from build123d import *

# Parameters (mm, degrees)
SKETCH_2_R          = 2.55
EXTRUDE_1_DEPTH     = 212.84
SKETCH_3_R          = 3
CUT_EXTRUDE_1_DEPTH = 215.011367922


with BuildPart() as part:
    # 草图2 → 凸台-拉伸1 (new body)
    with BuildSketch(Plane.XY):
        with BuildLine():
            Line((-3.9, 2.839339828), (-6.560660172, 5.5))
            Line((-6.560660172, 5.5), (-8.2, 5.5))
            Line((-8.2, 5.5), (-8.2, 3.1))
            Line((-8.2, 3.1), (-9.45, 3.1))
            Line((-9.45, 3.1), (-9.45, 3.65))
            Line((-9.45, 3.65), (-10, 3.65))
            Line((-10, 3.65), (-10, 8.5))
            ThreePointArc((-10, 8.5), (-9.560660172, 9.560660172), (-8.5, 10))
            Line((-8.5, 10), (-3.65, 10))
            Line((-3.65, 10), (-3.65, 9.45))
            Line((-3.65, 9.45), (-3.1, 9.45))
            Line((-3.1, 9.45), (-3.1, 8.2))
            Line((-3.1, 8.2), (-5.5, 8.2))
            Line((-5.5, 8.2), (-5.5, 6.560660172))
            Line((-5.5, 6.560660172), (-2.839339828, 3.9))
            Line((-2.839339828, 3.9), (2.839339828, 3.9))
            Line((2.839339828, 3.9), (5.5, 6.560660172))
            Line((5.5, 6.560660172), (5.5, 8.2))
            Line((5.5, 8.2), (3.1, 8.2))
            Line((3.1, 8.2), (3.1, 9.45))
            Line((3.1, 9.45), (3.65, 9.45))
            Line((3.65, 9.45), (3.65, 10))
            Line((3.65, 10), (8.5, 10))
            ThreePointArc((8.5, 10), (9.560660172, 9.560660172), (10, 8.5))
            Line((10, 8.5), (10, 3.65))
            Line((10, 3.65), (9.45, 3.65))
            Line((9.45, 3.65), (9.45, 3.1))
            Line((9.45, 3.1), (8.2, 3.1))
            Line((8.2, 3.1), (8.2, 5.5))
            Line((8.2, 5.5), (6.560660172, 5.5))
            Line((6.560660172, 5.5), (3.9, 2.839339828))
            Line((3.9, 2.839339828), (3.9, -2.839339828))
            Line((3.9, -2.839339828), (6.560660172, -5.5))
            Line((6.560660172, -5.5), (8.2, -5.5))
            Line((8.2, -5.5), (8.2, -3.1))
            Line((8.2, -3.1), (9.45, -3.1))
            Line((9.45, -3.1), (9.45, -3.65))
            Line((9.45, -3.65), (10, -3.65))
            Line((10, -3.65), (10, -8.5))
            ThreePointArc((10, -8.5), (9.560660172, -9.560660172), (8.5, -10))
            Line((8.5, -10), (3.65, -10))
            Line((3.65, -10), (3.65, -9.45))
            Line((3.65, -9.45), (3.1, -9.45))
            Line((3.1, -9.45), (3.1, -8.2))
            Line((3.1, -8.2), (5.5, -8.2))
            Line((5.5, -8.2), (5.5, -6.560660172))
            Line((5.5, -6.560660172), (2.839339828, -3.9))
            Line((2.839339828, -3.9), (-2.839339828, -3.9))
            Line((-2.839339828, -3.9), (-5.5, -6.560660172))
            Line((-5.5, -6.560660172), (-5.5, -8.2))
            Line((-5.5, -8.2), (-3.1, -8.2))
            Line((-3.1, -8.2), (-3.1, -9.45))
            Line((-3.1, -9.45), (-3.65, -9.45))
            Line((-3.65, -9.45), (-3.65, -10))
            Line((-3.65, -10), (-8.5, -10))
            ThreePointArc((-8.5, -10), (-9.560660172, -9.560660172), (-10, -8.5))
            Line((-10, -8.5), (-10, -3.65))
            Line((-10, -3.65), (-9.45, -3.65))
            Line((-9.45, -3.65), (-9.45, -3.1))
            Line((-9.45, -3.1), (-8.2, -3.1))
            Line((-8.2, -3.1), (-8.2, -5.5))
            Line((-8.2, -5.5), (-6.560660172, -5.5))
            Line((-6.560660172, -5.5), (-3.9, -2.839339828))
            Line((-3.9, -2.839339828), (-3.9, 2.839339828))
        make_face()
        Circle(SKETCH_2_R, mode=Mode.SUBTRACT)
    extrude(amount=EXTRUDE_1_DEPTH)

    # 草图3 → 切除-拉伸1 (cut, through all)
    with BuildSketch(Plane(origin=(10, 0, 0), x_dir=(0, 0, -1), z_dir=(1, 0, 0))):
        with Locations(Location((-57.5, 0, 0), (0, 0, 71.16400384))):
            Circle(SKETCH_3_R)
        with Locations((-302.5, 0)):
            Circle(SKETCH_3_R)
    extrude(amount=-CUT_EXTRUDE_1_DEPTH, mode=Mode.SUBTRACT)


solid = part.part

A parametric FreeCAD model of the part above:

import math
import FreeCAD as App
import Part
import Sketcher
from FreeCAD import Vector

doc = App.newDocument("Part")
body = doc.addObject("PartDesign::Body", "Body")

sketch1 = body.newObject("Sketcher::SketchObject", "Sketch")
sketch1.AttachmentSupport = (doc.getObject("XY_Plane"), [""])
sketch1.MapMode = "FlatFace"
sketch1.addGeometry([
    Part.LineSegment(Vector(-6.56066, 5.5, 0), Vector(-3.9, 2.83934, 0)),
    Part.LineSegment(Vector(-3.9, 2.83934, 0), Vector(-3.9, -2.83934, 0)),
    Part.LineSegment(Vector(-3.9, -2.83934, 0), Vector(-6.56066, -5.5, 0)),
    Part.LineSegment(Vector(-6.56066, -5.5, 0), Vector(-8.2, -5.5, 0)),
    Part.LineSegment(Vector(-8.2, -5.5, 0), Vector(-8.2, -3.1, 0)),
    Part.LineSegment(Vector(-8.2, -3.1, 0), Vector(-9.45, -3.1, 0)),
    Part.LineSegment(Vector(-9.45, -3.1, 0), Vector(-9.45, -3.65, 0)),
    Part.LineSegment(Vector(-9.45, -3.65, 0), Vector(-10, -3.65, 0)),
    Part.LineSegment(Vector(-10, -3.65, 0), Vector(-10, -8.5, 0)),
    Part.ArcOfCircle(Part.Circle(Vector(-8.5, -8.5, 0), Vector(0, 0, 1), 1.5), math.radians(180), math.radians(270)),
    Part.LineSegment(Vector(-8.5, -10, 0), Vector(-3.65, -10, 0)),
    Part.LineSegment(Vector(-3.65, -10, 0), Vector(-3.65, -9.45, 0)),
    Part.LineSegment(Vector(-3.65, -9.45, 0), Vector(-3.1, -9.45, 0)),
    Part.LineSegment(Vector(-3.1, -9.45, 0), Vector(-3.1, -8.2, 0)),
    Part.LineSegment(Vector(-3.1, -8.2, 0), Vector(-5.5, -8.2, 0)),
    Part.LineSegment(Vector(-5.5, -8.2, 0), Vector(-5.5, -6.56066, 0)),
    Part.LineSegment(Vector(-5.5, -6.56066, 0), Vector(-2.83934, -3.9, 0)),
    Part.LineSegment(Vector(-2.83934, -3.9, 0), Vector(2.83934, -3.9, 0)),
    Part.LineSegment(Vector(2.83934, -3.9, 0), Vector(5.5, -6.56066, 0)),
    Part.LineSegment(Vector(5.5, -6.56066, 0), Vector(5.5, -8.2, 0)),
    Part.LineSegment(Vector(5.5, -8.2, 0), Vector(3.1, -8.2, 0)),
    Part.LineSegment(Vector(3.1, -8.2, 0), Vector(3.1, -9.45, 0)),
    Part.LineSegment(Vector(3.1, -9.45, 0), Vector(3.65, -9.45, 0)),
    Part.LineSegment(Vector(3.65, -9.45, 0), Vector(3.65, -10, 0)),
    Part.LineSegment(Vector(3.65, -10, 0), Vector(8.5, -10, 0)),
    Part.ArcOfCircle(Part.Circle(Vector(8.5, -8.5, 0), Vector(0, 0, 1), 1.5), math.radians(-90), math.radians(0)),
    Part.LineSegment(Vector(10, -8.5, 0), Vector(10, -3.65, 0)),
    Part.LineSegment(Vector(10, -3.65, 0), Vector(9.45, -3.65, 0)),
    Part.LineSegment(Vector(9.45, -3.65, 0), Vector(9.45, -3.1, 0)),
    Part.LineSegment(Vector(9.45, -3.1, 0), Vector(8.2, -3.1, 0)),
    Part.LineSegment(Vector(8.2, -3.1, 0), Vector(8.2, -5.5, 0)),
    Part.LineSegment(Vector(8.2, -5.5, 0), Vector(6.56066, -5.5, 0)),
    Part.LineSegment(Vector(6.56066, -5.5, 0), Vector(3.9, -2.83934, 0)),
    Part.LineSegment(Vector(3.9, -2.83934, 0), Vector(3.9, 2.83934, 0)),
    Part.LineSegment(Vector(3.9, 2.83934, 0), Vector(6.56066, 5.5, 0)),
    Part.LineSegment(Vector(6.56066, 5.5, 0), Vector(8.2, 5.5, 0)),
    Part.LineSegment(Vector(8.2, 5.5, 0), Vector(8.2, 3.1, 0)),
    Part.LineSegment(Vector(8.2, 3.1, 0), Vector(9.45, 3.1, 0)),
    Part.LineSegment(Vector(9.45, 3.1, 0), Vector(9.45, 3.65, 0)),
    Part.LineSegment(Vector(9.45, 3.65, 0), Vector(10, 3.65, 0)),
    Part.LineSegment(Vector(10, 3.65, 0), Vector(10, 8.5, 0)),
    Part.ArcOfCircle(Part.Circle(Vector(8.5, 8.5, 0), Vector(0, 0, 1), 1.5), math.radians(0), math.radians(90)),
    Part.LineSegment(Vector(8.5, 10, 0), Vector(3.65, 10, 0)),
    Part.LineSegment(Vector(3.65, 10, 0), Vector(3.65, 9.45, 0)),
    Part.LineSegment(Vector(3.65, 9.45, 0), Vector(3.1, 9.45, 0)),
    Part.LineSegment(Vector(3.1, 9.45, 0), Vector(3.1, 8.2, 0)),
    Part.LineSegment(Vector(3.1, 8.2, 0), Vector(5.5, 8.2, 0)),
    Part.LineSegment(Vector(5.5, 8.2, 0), Vector(5.5, 6.56066, 0)),
    Part.LineSegment(Vector(5.5, 6.56066, 0), Vector(2.83934, 3.9, 0)),
    Part.LineSegment(Vector(2.83934, 3.9, 0), Vector(-2.83934, 3.9, 0)),
    Part.LineSegment(Vector(-2.83934, 3.9, 0), Vector(-5.5, 6.56066, 0)),
    Part.LineSegment(Vector(-5.5, 6.56066, 0), Vector(-5.5, 8.2, 0)),
    Part.LineSegment(Vector(-5.5, 8.2, 0), Vector(-3.1, 8.2, 0)),
    Part.LineSegment(Vector(-3.1, 8.2, 0), Vector(-3.1, 9.45, 0)),
    Part.LineSegment(Vector(-3.1, 9.45, 0), Vector(-3.65, 9.45, 0)),
    Part.LineSegment(Vector(-3.65, 9.45, 0), Vector(-3.65, 10, 0)),
    Part.LineSegment(Vector(-3.65, 10, 0), Vector(-8.5, 10, 0)),
    Part.ArcOfCircle(Part.Circle(Vector(-8.5, 8.5, 0), Vector(0, 0, 1), 1.5), math.radians(90), math.radians(180)),
    Part.LineSegment(Vector(-10, 8.5, 0), Vector(-10, 3.65, 0)),
    Part.LineSegment(Vector(-10, 3.65, 0), Vector(-9.45, 3.65, 0)),
    Part.LineSegment(Vector(-9.45, 3.65, 0), Vector(-9.45, 3.1, 0)),
    Part.LineSegment(Vector(-9.45, 3.1, 0), Vector(-8.2, 3.1, 0)),
    Part.LineSegment(Vector(-8.2, 3.1, 0), Vector(-8.2, 5.5, 0)),
    Part.LineSegment(Vector(-8.2, 5.5, 0), Vector(-6.56066, 5.5, 0)),
    Part.Circle(Vector(0, 0, 0), Vector(0, 0, 1), 2.55),
], False)
sketch1.addConstraint([
    Sketcher.Constraint("Coincident", 0, 2, 1, 1),
    Sketcher.Constraint("Coincident", 1, 2, 2, 1),
    Sketcher.Constraint("Coincident", 2, 2, 3, 1),
    Sketcher.Constraint("Coincident", 3, 2, 4, 1),
    Sketcher.Constraint("Coincident", 4, 2, 5, 1),
    Sketcher.Constraint("Coincident", 5, 2, 6, 1),
    Sketcher.Constraint("Coincident", 6, 2, 7, 1),
    Sketcher.Constraint("Coincident", 7, 2, 8, 1),
    Sketcher.Constraint("Tangent", 8, 2, 9, 1),
    Sketcher.Constraint("Tangent", 9, 2, 10, 1),
    Sketcher.Constraint("Coincident", 10, 2, 11, 1),
    Sketcher.Constraint("Coincident", 11, 2, 12, 1),
    Sketcher.Constraint("Coincident", 12, 2, 13, 1),
    Sketcher.Constraint("Coincident", 13, 2, 14, 1),
    Sketcher.Constraint("Coincident", 14, 2, 15, 1),
    Sketcher.Constraint("Coincident", 15, 2, 16, 1),
    Sketcher.Constraint("Coincident", 16, 2, 17, 1),
    Sketcher.Constraint("Coincident", 17, 2, 18, 1),
    Sketcher.Constraint("Coincident", 18, 2, 19, 1),
    Sketcher.Constraint("Coincident", 19, 2, 20, 1),
    Sketcher.Constraint("Coincident", 20, 2, 21, 1),
    Sketcher.Constraint("Coincident", 21, 2, 22, 1),
    Sketcher.Constraint("Coincident", 22, 2, 23, 1),
    Sketcher.Constraint("Coincident", 23, 2, 24, 1),
    Sketcher.Constraint("Tangent", 24, 2, 25, 1),
    Sketcher.Constraint("Tangent", 25, 2, 26, 1),
    Sketcher.Constraint("Coincident", 26, 2, 27, 1),
    Sketcher.Constraint("Coincident", 27, 2, 28, 1),
    Sketcher.Constraint("Coincident", 28, 2, 29, 1),
    Sketcher.Constraint("Coincident", 29, 2, 30, 1),
    Sketcher.Constraint("Coincident", 30, 2, 31, 1),
    Sketcher.Constraint("Coincident", 31, 2, 32, 1),
    Sketcher.Constraint("Coincident", 32, 2, 33, 1),
    Sketcher.Constraint("Coincident", 33, 2, 34, 1),
    Sketcher.Constraint("Coincident", 34, 2, 35, 1),
    Sketcher.Constraint("Coincident", 35, 2, 36, 1),
    Sketcher.Constraint("Coincident", 36, 2, 37, 1),
    Sketcher.Constraint("Coincident", 37, 2, 38, 1),
    Sketcher.Constraint("Coincident", 38, 2, 39, 1),
    Sketcher.Constraint("Coincident", 39, 2, 40, 1),
    Sketcher.Constraint("Tangent", 40, 2, 41, 1),
    Sketcher.Constraint("Tangent", 41, 2, 42, 1),
    Sketcher.Constraint("Coincident", 42, 2, 43, 1),
    Sketcher.Constraint("Coincident", 43, 2, 44, 1),
    Sketcher.Constraint("Coincident", 44, 2, 45, 1),
    Sketcher.Constraint("Coincident", 45, 2, 46, 1),
    Sketcher.Constraint("Coincident", 46, 2, 47, 1),
    Sketcher.Constraint("Coincident", 47, 2, 48, 1),
    Sketcher.Constraint("Coincident", 48, 2, 49, 1),
    Sketcher.Constraint("Coincident", 49, 2, 50, 1),
    Sketcher.Constraint("Coincident", 50, 2, 51, 1),
    Sketcher.Constraint("Coincident", 51, 2, 52, 1),
    Sketcher.Constraint("Coincident", 52, 2, 53, 1),
    Sketcher.Constraint("Coincident", 53, 2, 54, 1),
    Sketcher.Constraint("Coincident", 54, 2, 55, 1),
    Sketcher.Constraint("Coincident", 55, 2, 56, 1),
    Sketcher.Constraint("Tangent", 56, 2, 57, 1),
    Sketcher.Constraint("Tangent", 57, 2, 58, 1),
    Sketcher.Constraint("Coincident", 58, 2, 59, 1),
    Sketcher.Constraint("Coincident", 59, 2, 60, 1),
    Sketcher.Constraint("Coincident", 60, 2, 61, 1),
    Sketcher.Constraint("Coincident", 61, 2, 62, 1),
    Sketcher.Constraint("Coincident", 62, 2, 63, 1),
    Sketcher.Constraint("Coincident", 63, 2, 0, 1),
    Sketcher.Constraint("Vertical", 1),
    Sketcher.Constraint("Horizontal", 3),
    Sketcher.Constraint("Vertical", 4),
    Sketcher.Constraint("Horizontal", 5),
    Sketcher.Constraint("Vertical", 6),
    Sketcher.Constraint("Horizontal", 7),
    Sketcher.Constraint("Vertical", 8),
    Sketcher.Constraint("Horizontal", 10),
    Sketcher.Constraint("Vertical", 11),
    Sketcher.Constraint("Horizontal", 12),
    Sketcher.Constraint("Vertical", 13),
    Sketcher.Constraint("Horizontal", 14),
    Sketcher.Constraint("Vertical", 15),
    Sketcher.Constraint("Horizontal", 17),
    Sketcher.Constraint("Vertical", 19),
    Sketcher.Constraint("Horizontal", 20),
    Sketcher.Constraint("Vertical", 21),
    Sketcher.Constraint("Horizontal", 22),
    Sketcher.Constraint("Vertical", 23),
    Sketcher.Constraint("Horizontal", 24),
    Sketcher.Constraint("Vertical", 26),
    Sketcher.Constraint("Horizontal", 27),
    Sketcher.Constraint("Vertical", 28),
    Sketcher.Constraint("Horizontal", 29),
    Sketcher.Constraint("Vertical", 30),
    Sketcher.Constraint("Horizontal", 31),
    Sketcher.Constraint("Vertical", 33),
    Sketcher.Constraint("Horizontal", 35),
    Sketcher.Constraint("Vertical", 36),
    Sketcher.Constraint("Horizontal", 37),
    Sketcher.Constraint("Vertical", 38),
    Sketcher.Constraint("Horizontal", 39),
    Sketcher.Constraint("Vertical", 40),
    Sketcher.Constraint("Horizontal", 42),
    Sketcher.Constraint("Vertical", 43),
    Sketcher.Constraint("Horizontal", 44),
    Sketcher.Constraint("Vertical", 45),
    Sketcher.Constraint("Horizontal", 46),
    Sketcher.Constraint("Vertical", 47),
    Sketcher.Constraint("Horizontal", 49),
    Sketcher.Constraint("Vertical", 51),
    Sketcher.Constraint("Horizontal", 52),
    Sketcher.Constraint("Vertical", 53),
    Sketcher.Constraint("Horizontal", 54),
    Sketcher.Constraint("Vertical", 55),
    Sketcher.Constraint("Horizontal", 56),
    Sketcher.Constraint("Vertical", 58),
    Sketcher.Constraint("Horizontal", 59),
    Sketcher.Constraint("Vertical", 60),
    Sketcher.Constraint("Horizontal", 61),
    Sketcher.Constraint("Vertical", 62),
    Sketcher.Constraint("Horizontal", 63),
    Sketcher.Constraint("Coincident", 64, 3, -1, 1),
    Sketcher.Constraint("Equal", 9, 25),
    Sketcher.Constraint("Equal", 25, 41),
    Sketcher.Constraint("Equal", 41, 57),
    Sketcher.Constraint("Symmetric", 9, 3, 41, 3, -1, 1),
    Sketcher.Constraint("Symmetric", 25, 3, 57, 3, -1, 1),
    Sketcher.Constraint("Symmetric", 0, 2, 32, 2, -1, 1),
    Sketcher.Constraint("Symmetric", 2, 2, 34, 2, -1, 1),
    Sketcher.Constraint("Symmetric", 4, 2, 36, 2, -1, 1),
    Sketcher.Constraint("Symmetric", 6, 2, 38, 2, -1, 1),
    Sketcher.Constraint("Symmetric", 11, 2, 43, 2, -1, 1),
    Sketcher.Constraint("Symmetric", 13, 2, 45, 2, -1, 1),
    Sketcher.Constraint("Symmetric", 15, 2, 47, 2, -1, 1),
    Sketcher.Constraint("Symmetric", 16, 2, 48, 2, -1, 1),
    Sketcher.Constraint("Symmetric", 18, 2, 50, 2, -1, 1),
    Sketcher.Constraint("Symmetric", 20, 2, 52, 2, -1, 1),
    Sketcher.Constraint("Symmetric", 22, 2, 54, 2, -1, 1),
    Sketcher.Constraint("Symmetric", 27, 2, 59, 2, -1, 1),
    Sketcher.Constraint("Symmetric", 29, 2, 61, 2, -1, 1),
    Sketcher.Constraint("Symmetric", 31, 2, 63, 2, -1, 1),
    Sketcher.Constraint("Symmetric", 9, 3, 25, 3, -2),
    Sketcher.Constraint("Symmetric", 15, 2, 18, 2, -2),
    Sketcher.Constraint("Symmetric", 13, 2, 20, 2, -2),
    Sketcher.Constraint("Symmetric", 11, 2, 22, 2, -2),
    Sketcher.Constraint("Symmetric", 6, 2, 27, 2, -2),
    Sketcher.Constraint("Symmetric", 4, 2, 29, 2, -2),
    Sketcher.Constraint("Symmetric", 2, 2, 31, 2, -2),
    Sketcher.Constraint("Perpendicular", 0, 2),
    Sketcher.Constraint("Parallel", 2, 16),
    Sketcher.Constraint("Perpendicular", 16, 18),
    Sketcher.Constraint("Perpendicular", 32, 34),
    Sketcher.Constraint("Perpendicular", 48, 50),
    Sketcher.Constraint("Horizontal", 1, 2, 32, 2),
    Sketcher.Constraint("Equal", 7, 12),
    Sketcher.Constraint("Equal", 49, 1),
    Sketcher.Constraint("Equal", 52, 4),
    Sketcher.Constraint("Equal", 59, 6),
    Sketcher.Constraint("Equal", 56, 8),
    Sketcher.Constraint("Equal", 6, 11),
    Sketcher.Constraint("Equal", 61, 13),
    Sketcher.Constraint("Equal", 63, 15),
    Sketcher.Constraint("Equal", 2, 16),
    Sketcher.Constraint("Diameter", 64, 5.1),
    Sketcher.Constraint("Radius", 9, 1.5),
    Sketcher.Constraint("DistanceX", 14, 2, 14, 1, 2.4),
    Sketcher.Constraint("DistanceX", 7, 2, -1, 1, 10.0),
    Sketcher.Constraint("DistanceX", 5, 2, 5, 1, 1.25),
    Sketcher.Constraint("DistanceX", 7, 2, 7, 1, 0.55),
    Sketcher.Constraint("DistanceX", 10, 1, 10, 2, 4.85),
    Sketcher.Constraint("DistanceX", 0, 2, -1, 1, 3.9),
    Sketcher.Constraint("DistanceX", 3, 2, 3, 1, 1.63934),
])
pad1 = body.newObject("PartDesign::Pad", "Pad")
pad1.Profile = sketch1
pad1.Length = 212.84

sketch2 = body.newObject("Sketcher::SketchObject", "Sketch001")
sketch2.AttachmentSupport = (doc.getObject("YZ_Plane"), [""])
sketch2.MapMode = "FlatFace"
sketch2.AttachmentOffset = App.Placement(Vector(0, 0, 10), App.Rotation())
sketch2.addGeometry([
    Part.Circle(Vector(0, 57.5, 0), Vector(0, 0, 1), 3),
    Part.Circle(Vector(0, 302.5, 0), Vector(0, 0, 1), 3),
], False)
sketch2.addConstraint([
    Sketcher.Constraint("Equal", 0, 1),
    Sketcher.Constraint("PointOnObject", 0, 3, -2),
    Sketcher.Constraint("PointOnObject", 1, 3, -2),
    Sketcher.Constraint("Diameter", 0, 6.0),
    Sketcher.Constraint("DistanceY", 0, 3, 1, 3, 245.0),
    Sketcher.Constraint("DistanceY", -1, 1, 0, 3, 57.5),
])
pocket1 = body.newObject("PartDesign::Pocket", "Pocket")
pocket1.Profile = sketch2
pocket1.Type = "ThroughAll"

doc.recompute()
